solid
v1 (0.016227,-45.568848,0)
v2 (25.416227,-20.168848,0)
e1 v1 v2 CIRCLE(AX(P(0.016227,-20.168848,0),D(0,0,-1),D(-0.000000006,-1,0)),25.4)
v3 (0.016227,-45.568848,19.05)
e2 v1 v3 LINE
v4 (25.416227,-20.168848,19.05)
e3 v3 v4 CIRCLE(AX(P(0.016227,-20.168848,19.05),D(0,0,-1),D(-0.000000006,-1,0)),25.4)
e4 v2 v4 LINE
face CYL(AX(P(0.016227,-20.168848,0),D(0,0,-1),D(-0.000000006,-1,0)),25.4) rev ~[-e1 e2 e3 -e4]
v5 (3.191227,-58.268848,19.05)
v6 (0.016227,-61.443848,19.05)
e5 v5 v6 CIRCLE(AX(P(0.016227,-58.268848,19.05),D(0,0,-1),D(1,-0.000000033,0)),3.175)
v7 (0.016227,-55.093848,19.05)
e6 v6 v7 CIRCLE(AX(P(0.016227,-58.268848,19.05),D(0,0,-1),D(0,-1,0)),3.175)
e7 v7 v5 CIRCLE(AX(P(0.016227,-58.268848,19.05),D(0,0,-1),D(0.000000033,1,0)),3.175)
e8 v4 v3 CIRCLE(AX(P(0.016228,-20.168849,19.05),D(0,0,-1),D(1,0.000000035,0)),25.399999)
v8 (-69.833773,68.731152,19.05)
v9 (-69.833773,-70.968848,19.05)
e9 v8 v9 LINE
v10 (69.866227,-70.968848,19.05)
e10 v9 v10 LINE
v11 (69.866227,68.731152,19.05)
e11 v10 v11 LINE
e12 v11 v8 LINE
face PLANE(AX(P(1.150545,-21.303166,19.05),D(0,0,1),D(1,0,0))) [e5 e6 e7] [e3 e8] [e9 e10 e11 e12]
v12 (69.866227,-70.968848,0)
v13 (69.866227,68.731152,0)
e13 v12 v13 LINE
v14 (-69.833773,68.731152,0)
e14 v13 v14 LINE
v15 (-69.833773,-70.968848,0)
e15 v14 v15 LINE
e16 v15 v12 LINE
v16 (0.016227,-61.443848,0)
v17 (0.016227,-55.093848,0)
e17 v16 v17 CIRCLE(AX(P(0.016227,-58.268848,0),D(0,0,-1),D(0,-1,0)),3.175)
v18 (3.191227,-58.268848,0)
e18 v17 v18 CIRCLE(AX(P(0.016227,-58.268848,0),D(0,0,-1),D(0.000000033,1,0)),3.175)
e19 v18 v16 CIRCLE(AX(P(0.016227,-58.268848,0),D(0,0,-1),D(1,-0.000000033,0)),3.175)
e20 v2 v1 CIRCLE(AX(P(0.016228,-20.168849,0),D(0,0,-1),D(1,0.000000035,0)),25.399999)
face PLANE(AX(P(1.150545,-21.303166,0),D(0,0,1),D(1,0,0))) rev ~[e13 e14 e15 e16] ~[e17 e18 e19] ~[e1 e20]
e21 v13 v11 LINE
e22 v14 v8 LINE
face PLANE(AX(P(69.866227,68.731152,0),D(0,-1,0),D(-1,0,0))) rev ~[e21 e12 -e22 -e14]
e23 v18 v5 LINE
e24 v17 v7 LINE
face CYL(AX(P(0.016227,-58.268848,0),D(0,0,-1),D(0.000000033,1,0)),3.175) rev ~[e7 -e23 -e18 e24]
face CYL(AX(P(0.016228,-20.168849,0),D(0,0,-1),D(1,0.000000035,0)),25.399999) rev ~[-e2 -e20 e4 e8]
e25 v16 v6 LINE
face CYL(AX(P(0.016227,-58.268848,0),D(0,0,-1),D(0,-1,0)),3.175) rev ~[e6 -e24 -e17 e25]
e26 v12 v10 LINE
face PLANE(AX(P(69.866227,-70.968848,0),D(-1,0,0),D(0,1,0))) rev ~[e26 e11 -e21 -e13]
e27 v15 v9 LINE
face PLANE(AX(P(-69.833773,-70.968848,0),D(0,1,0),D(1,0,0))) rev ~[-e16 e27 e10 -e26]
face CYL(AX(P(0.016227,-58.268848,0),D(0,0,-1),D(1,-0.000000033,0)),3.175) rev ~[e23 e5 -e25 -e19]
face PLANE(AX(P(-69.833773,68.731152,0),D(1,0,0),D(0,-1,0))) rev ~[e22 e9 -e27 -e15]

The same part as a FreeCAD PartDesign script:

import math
import FreeCAD as App
import Part
import Sketcher

V = App.Vector
Q = App.Units.Quantity

doc = App.newDocument("Part")
body = doc.addObject("PartDesign::Body", "Body")

# Sketch on XY plane
sketch1 = doc.addObject("Sketcher::SketchObject", "Sketch")
body.addObject(sketch1)
sketch1.AttachmentSupport = (doc.XY_Plane, [""])
sketch1.MapMode = "FlatFace"
sketch1.addGeometry(Part.LineSegment(V(69.9, -71, 0), V(69.9, 68.7, 0)), False)
sketch1.addGeometry(Part.LineSegment(V(69.9, 68.7, 0), V(-69.8, 68.7, 0)), False)
sketch1.addGeometry(Part.LineSegment(V(-69.8, 68.7, 0), V(-69.8, -71, 0)), False)
sketch1.addGeometry(Part.LineSegment(V(-69.8, -71, 0), V(69.9, -71, 0)), False)
sketch1.addGeometry(Part.ArcOfCircle(Part.Circle(V(0, -58.3, 0), V(0, 0, 1), 3.2), math.radians(0), math.radians(90)), False)
sketch1.addGeometry(Part.ArcOfCircle(Part.Circle(V(0, -58.3, 0), V(0, 0, 1), 3.2), math.radians(-90), math.radians(0)), False)
sketch1.addGeometry(Part.ArcOfCircle(Part.Circle(V(0, -58.3, 0), V(0, 0, 1), 3.2), math.radians(90), math.radians(270)), False)
sketch1.addGeometry(Part.ArcOfCircle(Part.Circle(V(0, -20.2, 0), V(0, 0, 1), 25.4), math.radians(0), math.radians(270)), False)
sketch1.addGeometry(Part.ArcOfCircle(Part.Circle(V(0, -20.2, 0), V(0, 0, 1), 25.4), math.radians(-90), math.radians(0)), False)
sketch1.addConstraint(Sketcher.Constraint("Coincident", 0, 2, 1, 1))
sketch1.addConstraint(Sketcher.Constraint("Coincident", 1, 2, 2, 1))
sketch1.addConstraint(Sketcher.Constraint("Coincident", 2, 2, 3, 1))
sketch1.addConstraint(Sketcher.Constraint("Coincident", 3, 2, 0, 1))
sketch1.addConstraint(Sketcher.Constraint("Tangent", 4, 1, 5, 2))
sketch1.addConstraint(Sketcher.Constraint("Tangent", 5, 1, 6, 2))
sketch1.addConstraint(Sketcher.Constraint("Tangent", 6, 1, 4, 2))
sketch1.addConstraint(Sketcher.Constraint("Tangent", 7, 1, 8, 2))
sketch1.addConstraint(Sketcher.Constraint("Coincident", 8, 1, 7, 2))
sketch1.addConstraint(Sketcher.Constraint("Vertical", 0))
sketch1.addConstraint(Sketcher.Constraint("Horizontal", 1))
sketch1.addConstraint(Sketcher.Constraint("Vertical", 2))
sketch1.addConstraint(Sketcher.Constraint("Horizontal", 3))
sketch1.addConstraint(Sketcher.Constraint("Horizontal", 6, 3, 4, 1))
sketch1.addConstraint(Sketcher.Constraint("Horizontal", 8, 3, 7, 1))
sketch1.addConstraint(Sketcher.Constraint("Vertical", 6, 3, 7, 3))
sketch1.addConstraint(Sketcher.Constraint("Vertical", 8, 3, 5, 1))
sketch1.addConstraint(Sketcher.Constraint("Vertical", 5, 1, 6, 1))
sketch1.addConstraint(Sketcher.Constraint("Vertical", 6, 1, 8, 1))
sketch1.addConstraint(Sketcher.Constraint("Equal", 3, 0))
sketch1.addConstraint(Sketcher.Constraint("Radius", 7, Q("1 in")))
sketch1.addConstraint(Sketcher.Constraint("DistanceX", 1, 2, 1, 1, Q("5.5 in")))
sketch1.addConstraint(Sketcher.Constraint("Radius", 4, Q("0.125 in")))
sketch1.addConstraint(Sketcher.Constraint("DistanceY", 5, 3, 0, 2, Q("5 in")))
sketch1.addConstraint(Sketcher.Constraint("DistanceY", 2, 2, 7, 3, Q("2 in")))
sketch1.addConstraint(Sketcher.Constraint("DistanceX", 7, 3, 0, 2, Q("2.75 in")))
sketch1.addConstraint(Sketcher.Constraint("DistanceY", 4, 3, -1, 1, Q("58.268848 mm")))
sketch1.addConstraint(Sketcher.Constraint("DistanceX", -1, 1, 4, 3, Q("0.016227 mm")))
pad1 = doc.addObject("PartDesign::Pad", "Pad")
body.addObject(pad1)
pad1.Profile = sketch1
pad1.Length = Q("0.75 in")

doc.recompute()
